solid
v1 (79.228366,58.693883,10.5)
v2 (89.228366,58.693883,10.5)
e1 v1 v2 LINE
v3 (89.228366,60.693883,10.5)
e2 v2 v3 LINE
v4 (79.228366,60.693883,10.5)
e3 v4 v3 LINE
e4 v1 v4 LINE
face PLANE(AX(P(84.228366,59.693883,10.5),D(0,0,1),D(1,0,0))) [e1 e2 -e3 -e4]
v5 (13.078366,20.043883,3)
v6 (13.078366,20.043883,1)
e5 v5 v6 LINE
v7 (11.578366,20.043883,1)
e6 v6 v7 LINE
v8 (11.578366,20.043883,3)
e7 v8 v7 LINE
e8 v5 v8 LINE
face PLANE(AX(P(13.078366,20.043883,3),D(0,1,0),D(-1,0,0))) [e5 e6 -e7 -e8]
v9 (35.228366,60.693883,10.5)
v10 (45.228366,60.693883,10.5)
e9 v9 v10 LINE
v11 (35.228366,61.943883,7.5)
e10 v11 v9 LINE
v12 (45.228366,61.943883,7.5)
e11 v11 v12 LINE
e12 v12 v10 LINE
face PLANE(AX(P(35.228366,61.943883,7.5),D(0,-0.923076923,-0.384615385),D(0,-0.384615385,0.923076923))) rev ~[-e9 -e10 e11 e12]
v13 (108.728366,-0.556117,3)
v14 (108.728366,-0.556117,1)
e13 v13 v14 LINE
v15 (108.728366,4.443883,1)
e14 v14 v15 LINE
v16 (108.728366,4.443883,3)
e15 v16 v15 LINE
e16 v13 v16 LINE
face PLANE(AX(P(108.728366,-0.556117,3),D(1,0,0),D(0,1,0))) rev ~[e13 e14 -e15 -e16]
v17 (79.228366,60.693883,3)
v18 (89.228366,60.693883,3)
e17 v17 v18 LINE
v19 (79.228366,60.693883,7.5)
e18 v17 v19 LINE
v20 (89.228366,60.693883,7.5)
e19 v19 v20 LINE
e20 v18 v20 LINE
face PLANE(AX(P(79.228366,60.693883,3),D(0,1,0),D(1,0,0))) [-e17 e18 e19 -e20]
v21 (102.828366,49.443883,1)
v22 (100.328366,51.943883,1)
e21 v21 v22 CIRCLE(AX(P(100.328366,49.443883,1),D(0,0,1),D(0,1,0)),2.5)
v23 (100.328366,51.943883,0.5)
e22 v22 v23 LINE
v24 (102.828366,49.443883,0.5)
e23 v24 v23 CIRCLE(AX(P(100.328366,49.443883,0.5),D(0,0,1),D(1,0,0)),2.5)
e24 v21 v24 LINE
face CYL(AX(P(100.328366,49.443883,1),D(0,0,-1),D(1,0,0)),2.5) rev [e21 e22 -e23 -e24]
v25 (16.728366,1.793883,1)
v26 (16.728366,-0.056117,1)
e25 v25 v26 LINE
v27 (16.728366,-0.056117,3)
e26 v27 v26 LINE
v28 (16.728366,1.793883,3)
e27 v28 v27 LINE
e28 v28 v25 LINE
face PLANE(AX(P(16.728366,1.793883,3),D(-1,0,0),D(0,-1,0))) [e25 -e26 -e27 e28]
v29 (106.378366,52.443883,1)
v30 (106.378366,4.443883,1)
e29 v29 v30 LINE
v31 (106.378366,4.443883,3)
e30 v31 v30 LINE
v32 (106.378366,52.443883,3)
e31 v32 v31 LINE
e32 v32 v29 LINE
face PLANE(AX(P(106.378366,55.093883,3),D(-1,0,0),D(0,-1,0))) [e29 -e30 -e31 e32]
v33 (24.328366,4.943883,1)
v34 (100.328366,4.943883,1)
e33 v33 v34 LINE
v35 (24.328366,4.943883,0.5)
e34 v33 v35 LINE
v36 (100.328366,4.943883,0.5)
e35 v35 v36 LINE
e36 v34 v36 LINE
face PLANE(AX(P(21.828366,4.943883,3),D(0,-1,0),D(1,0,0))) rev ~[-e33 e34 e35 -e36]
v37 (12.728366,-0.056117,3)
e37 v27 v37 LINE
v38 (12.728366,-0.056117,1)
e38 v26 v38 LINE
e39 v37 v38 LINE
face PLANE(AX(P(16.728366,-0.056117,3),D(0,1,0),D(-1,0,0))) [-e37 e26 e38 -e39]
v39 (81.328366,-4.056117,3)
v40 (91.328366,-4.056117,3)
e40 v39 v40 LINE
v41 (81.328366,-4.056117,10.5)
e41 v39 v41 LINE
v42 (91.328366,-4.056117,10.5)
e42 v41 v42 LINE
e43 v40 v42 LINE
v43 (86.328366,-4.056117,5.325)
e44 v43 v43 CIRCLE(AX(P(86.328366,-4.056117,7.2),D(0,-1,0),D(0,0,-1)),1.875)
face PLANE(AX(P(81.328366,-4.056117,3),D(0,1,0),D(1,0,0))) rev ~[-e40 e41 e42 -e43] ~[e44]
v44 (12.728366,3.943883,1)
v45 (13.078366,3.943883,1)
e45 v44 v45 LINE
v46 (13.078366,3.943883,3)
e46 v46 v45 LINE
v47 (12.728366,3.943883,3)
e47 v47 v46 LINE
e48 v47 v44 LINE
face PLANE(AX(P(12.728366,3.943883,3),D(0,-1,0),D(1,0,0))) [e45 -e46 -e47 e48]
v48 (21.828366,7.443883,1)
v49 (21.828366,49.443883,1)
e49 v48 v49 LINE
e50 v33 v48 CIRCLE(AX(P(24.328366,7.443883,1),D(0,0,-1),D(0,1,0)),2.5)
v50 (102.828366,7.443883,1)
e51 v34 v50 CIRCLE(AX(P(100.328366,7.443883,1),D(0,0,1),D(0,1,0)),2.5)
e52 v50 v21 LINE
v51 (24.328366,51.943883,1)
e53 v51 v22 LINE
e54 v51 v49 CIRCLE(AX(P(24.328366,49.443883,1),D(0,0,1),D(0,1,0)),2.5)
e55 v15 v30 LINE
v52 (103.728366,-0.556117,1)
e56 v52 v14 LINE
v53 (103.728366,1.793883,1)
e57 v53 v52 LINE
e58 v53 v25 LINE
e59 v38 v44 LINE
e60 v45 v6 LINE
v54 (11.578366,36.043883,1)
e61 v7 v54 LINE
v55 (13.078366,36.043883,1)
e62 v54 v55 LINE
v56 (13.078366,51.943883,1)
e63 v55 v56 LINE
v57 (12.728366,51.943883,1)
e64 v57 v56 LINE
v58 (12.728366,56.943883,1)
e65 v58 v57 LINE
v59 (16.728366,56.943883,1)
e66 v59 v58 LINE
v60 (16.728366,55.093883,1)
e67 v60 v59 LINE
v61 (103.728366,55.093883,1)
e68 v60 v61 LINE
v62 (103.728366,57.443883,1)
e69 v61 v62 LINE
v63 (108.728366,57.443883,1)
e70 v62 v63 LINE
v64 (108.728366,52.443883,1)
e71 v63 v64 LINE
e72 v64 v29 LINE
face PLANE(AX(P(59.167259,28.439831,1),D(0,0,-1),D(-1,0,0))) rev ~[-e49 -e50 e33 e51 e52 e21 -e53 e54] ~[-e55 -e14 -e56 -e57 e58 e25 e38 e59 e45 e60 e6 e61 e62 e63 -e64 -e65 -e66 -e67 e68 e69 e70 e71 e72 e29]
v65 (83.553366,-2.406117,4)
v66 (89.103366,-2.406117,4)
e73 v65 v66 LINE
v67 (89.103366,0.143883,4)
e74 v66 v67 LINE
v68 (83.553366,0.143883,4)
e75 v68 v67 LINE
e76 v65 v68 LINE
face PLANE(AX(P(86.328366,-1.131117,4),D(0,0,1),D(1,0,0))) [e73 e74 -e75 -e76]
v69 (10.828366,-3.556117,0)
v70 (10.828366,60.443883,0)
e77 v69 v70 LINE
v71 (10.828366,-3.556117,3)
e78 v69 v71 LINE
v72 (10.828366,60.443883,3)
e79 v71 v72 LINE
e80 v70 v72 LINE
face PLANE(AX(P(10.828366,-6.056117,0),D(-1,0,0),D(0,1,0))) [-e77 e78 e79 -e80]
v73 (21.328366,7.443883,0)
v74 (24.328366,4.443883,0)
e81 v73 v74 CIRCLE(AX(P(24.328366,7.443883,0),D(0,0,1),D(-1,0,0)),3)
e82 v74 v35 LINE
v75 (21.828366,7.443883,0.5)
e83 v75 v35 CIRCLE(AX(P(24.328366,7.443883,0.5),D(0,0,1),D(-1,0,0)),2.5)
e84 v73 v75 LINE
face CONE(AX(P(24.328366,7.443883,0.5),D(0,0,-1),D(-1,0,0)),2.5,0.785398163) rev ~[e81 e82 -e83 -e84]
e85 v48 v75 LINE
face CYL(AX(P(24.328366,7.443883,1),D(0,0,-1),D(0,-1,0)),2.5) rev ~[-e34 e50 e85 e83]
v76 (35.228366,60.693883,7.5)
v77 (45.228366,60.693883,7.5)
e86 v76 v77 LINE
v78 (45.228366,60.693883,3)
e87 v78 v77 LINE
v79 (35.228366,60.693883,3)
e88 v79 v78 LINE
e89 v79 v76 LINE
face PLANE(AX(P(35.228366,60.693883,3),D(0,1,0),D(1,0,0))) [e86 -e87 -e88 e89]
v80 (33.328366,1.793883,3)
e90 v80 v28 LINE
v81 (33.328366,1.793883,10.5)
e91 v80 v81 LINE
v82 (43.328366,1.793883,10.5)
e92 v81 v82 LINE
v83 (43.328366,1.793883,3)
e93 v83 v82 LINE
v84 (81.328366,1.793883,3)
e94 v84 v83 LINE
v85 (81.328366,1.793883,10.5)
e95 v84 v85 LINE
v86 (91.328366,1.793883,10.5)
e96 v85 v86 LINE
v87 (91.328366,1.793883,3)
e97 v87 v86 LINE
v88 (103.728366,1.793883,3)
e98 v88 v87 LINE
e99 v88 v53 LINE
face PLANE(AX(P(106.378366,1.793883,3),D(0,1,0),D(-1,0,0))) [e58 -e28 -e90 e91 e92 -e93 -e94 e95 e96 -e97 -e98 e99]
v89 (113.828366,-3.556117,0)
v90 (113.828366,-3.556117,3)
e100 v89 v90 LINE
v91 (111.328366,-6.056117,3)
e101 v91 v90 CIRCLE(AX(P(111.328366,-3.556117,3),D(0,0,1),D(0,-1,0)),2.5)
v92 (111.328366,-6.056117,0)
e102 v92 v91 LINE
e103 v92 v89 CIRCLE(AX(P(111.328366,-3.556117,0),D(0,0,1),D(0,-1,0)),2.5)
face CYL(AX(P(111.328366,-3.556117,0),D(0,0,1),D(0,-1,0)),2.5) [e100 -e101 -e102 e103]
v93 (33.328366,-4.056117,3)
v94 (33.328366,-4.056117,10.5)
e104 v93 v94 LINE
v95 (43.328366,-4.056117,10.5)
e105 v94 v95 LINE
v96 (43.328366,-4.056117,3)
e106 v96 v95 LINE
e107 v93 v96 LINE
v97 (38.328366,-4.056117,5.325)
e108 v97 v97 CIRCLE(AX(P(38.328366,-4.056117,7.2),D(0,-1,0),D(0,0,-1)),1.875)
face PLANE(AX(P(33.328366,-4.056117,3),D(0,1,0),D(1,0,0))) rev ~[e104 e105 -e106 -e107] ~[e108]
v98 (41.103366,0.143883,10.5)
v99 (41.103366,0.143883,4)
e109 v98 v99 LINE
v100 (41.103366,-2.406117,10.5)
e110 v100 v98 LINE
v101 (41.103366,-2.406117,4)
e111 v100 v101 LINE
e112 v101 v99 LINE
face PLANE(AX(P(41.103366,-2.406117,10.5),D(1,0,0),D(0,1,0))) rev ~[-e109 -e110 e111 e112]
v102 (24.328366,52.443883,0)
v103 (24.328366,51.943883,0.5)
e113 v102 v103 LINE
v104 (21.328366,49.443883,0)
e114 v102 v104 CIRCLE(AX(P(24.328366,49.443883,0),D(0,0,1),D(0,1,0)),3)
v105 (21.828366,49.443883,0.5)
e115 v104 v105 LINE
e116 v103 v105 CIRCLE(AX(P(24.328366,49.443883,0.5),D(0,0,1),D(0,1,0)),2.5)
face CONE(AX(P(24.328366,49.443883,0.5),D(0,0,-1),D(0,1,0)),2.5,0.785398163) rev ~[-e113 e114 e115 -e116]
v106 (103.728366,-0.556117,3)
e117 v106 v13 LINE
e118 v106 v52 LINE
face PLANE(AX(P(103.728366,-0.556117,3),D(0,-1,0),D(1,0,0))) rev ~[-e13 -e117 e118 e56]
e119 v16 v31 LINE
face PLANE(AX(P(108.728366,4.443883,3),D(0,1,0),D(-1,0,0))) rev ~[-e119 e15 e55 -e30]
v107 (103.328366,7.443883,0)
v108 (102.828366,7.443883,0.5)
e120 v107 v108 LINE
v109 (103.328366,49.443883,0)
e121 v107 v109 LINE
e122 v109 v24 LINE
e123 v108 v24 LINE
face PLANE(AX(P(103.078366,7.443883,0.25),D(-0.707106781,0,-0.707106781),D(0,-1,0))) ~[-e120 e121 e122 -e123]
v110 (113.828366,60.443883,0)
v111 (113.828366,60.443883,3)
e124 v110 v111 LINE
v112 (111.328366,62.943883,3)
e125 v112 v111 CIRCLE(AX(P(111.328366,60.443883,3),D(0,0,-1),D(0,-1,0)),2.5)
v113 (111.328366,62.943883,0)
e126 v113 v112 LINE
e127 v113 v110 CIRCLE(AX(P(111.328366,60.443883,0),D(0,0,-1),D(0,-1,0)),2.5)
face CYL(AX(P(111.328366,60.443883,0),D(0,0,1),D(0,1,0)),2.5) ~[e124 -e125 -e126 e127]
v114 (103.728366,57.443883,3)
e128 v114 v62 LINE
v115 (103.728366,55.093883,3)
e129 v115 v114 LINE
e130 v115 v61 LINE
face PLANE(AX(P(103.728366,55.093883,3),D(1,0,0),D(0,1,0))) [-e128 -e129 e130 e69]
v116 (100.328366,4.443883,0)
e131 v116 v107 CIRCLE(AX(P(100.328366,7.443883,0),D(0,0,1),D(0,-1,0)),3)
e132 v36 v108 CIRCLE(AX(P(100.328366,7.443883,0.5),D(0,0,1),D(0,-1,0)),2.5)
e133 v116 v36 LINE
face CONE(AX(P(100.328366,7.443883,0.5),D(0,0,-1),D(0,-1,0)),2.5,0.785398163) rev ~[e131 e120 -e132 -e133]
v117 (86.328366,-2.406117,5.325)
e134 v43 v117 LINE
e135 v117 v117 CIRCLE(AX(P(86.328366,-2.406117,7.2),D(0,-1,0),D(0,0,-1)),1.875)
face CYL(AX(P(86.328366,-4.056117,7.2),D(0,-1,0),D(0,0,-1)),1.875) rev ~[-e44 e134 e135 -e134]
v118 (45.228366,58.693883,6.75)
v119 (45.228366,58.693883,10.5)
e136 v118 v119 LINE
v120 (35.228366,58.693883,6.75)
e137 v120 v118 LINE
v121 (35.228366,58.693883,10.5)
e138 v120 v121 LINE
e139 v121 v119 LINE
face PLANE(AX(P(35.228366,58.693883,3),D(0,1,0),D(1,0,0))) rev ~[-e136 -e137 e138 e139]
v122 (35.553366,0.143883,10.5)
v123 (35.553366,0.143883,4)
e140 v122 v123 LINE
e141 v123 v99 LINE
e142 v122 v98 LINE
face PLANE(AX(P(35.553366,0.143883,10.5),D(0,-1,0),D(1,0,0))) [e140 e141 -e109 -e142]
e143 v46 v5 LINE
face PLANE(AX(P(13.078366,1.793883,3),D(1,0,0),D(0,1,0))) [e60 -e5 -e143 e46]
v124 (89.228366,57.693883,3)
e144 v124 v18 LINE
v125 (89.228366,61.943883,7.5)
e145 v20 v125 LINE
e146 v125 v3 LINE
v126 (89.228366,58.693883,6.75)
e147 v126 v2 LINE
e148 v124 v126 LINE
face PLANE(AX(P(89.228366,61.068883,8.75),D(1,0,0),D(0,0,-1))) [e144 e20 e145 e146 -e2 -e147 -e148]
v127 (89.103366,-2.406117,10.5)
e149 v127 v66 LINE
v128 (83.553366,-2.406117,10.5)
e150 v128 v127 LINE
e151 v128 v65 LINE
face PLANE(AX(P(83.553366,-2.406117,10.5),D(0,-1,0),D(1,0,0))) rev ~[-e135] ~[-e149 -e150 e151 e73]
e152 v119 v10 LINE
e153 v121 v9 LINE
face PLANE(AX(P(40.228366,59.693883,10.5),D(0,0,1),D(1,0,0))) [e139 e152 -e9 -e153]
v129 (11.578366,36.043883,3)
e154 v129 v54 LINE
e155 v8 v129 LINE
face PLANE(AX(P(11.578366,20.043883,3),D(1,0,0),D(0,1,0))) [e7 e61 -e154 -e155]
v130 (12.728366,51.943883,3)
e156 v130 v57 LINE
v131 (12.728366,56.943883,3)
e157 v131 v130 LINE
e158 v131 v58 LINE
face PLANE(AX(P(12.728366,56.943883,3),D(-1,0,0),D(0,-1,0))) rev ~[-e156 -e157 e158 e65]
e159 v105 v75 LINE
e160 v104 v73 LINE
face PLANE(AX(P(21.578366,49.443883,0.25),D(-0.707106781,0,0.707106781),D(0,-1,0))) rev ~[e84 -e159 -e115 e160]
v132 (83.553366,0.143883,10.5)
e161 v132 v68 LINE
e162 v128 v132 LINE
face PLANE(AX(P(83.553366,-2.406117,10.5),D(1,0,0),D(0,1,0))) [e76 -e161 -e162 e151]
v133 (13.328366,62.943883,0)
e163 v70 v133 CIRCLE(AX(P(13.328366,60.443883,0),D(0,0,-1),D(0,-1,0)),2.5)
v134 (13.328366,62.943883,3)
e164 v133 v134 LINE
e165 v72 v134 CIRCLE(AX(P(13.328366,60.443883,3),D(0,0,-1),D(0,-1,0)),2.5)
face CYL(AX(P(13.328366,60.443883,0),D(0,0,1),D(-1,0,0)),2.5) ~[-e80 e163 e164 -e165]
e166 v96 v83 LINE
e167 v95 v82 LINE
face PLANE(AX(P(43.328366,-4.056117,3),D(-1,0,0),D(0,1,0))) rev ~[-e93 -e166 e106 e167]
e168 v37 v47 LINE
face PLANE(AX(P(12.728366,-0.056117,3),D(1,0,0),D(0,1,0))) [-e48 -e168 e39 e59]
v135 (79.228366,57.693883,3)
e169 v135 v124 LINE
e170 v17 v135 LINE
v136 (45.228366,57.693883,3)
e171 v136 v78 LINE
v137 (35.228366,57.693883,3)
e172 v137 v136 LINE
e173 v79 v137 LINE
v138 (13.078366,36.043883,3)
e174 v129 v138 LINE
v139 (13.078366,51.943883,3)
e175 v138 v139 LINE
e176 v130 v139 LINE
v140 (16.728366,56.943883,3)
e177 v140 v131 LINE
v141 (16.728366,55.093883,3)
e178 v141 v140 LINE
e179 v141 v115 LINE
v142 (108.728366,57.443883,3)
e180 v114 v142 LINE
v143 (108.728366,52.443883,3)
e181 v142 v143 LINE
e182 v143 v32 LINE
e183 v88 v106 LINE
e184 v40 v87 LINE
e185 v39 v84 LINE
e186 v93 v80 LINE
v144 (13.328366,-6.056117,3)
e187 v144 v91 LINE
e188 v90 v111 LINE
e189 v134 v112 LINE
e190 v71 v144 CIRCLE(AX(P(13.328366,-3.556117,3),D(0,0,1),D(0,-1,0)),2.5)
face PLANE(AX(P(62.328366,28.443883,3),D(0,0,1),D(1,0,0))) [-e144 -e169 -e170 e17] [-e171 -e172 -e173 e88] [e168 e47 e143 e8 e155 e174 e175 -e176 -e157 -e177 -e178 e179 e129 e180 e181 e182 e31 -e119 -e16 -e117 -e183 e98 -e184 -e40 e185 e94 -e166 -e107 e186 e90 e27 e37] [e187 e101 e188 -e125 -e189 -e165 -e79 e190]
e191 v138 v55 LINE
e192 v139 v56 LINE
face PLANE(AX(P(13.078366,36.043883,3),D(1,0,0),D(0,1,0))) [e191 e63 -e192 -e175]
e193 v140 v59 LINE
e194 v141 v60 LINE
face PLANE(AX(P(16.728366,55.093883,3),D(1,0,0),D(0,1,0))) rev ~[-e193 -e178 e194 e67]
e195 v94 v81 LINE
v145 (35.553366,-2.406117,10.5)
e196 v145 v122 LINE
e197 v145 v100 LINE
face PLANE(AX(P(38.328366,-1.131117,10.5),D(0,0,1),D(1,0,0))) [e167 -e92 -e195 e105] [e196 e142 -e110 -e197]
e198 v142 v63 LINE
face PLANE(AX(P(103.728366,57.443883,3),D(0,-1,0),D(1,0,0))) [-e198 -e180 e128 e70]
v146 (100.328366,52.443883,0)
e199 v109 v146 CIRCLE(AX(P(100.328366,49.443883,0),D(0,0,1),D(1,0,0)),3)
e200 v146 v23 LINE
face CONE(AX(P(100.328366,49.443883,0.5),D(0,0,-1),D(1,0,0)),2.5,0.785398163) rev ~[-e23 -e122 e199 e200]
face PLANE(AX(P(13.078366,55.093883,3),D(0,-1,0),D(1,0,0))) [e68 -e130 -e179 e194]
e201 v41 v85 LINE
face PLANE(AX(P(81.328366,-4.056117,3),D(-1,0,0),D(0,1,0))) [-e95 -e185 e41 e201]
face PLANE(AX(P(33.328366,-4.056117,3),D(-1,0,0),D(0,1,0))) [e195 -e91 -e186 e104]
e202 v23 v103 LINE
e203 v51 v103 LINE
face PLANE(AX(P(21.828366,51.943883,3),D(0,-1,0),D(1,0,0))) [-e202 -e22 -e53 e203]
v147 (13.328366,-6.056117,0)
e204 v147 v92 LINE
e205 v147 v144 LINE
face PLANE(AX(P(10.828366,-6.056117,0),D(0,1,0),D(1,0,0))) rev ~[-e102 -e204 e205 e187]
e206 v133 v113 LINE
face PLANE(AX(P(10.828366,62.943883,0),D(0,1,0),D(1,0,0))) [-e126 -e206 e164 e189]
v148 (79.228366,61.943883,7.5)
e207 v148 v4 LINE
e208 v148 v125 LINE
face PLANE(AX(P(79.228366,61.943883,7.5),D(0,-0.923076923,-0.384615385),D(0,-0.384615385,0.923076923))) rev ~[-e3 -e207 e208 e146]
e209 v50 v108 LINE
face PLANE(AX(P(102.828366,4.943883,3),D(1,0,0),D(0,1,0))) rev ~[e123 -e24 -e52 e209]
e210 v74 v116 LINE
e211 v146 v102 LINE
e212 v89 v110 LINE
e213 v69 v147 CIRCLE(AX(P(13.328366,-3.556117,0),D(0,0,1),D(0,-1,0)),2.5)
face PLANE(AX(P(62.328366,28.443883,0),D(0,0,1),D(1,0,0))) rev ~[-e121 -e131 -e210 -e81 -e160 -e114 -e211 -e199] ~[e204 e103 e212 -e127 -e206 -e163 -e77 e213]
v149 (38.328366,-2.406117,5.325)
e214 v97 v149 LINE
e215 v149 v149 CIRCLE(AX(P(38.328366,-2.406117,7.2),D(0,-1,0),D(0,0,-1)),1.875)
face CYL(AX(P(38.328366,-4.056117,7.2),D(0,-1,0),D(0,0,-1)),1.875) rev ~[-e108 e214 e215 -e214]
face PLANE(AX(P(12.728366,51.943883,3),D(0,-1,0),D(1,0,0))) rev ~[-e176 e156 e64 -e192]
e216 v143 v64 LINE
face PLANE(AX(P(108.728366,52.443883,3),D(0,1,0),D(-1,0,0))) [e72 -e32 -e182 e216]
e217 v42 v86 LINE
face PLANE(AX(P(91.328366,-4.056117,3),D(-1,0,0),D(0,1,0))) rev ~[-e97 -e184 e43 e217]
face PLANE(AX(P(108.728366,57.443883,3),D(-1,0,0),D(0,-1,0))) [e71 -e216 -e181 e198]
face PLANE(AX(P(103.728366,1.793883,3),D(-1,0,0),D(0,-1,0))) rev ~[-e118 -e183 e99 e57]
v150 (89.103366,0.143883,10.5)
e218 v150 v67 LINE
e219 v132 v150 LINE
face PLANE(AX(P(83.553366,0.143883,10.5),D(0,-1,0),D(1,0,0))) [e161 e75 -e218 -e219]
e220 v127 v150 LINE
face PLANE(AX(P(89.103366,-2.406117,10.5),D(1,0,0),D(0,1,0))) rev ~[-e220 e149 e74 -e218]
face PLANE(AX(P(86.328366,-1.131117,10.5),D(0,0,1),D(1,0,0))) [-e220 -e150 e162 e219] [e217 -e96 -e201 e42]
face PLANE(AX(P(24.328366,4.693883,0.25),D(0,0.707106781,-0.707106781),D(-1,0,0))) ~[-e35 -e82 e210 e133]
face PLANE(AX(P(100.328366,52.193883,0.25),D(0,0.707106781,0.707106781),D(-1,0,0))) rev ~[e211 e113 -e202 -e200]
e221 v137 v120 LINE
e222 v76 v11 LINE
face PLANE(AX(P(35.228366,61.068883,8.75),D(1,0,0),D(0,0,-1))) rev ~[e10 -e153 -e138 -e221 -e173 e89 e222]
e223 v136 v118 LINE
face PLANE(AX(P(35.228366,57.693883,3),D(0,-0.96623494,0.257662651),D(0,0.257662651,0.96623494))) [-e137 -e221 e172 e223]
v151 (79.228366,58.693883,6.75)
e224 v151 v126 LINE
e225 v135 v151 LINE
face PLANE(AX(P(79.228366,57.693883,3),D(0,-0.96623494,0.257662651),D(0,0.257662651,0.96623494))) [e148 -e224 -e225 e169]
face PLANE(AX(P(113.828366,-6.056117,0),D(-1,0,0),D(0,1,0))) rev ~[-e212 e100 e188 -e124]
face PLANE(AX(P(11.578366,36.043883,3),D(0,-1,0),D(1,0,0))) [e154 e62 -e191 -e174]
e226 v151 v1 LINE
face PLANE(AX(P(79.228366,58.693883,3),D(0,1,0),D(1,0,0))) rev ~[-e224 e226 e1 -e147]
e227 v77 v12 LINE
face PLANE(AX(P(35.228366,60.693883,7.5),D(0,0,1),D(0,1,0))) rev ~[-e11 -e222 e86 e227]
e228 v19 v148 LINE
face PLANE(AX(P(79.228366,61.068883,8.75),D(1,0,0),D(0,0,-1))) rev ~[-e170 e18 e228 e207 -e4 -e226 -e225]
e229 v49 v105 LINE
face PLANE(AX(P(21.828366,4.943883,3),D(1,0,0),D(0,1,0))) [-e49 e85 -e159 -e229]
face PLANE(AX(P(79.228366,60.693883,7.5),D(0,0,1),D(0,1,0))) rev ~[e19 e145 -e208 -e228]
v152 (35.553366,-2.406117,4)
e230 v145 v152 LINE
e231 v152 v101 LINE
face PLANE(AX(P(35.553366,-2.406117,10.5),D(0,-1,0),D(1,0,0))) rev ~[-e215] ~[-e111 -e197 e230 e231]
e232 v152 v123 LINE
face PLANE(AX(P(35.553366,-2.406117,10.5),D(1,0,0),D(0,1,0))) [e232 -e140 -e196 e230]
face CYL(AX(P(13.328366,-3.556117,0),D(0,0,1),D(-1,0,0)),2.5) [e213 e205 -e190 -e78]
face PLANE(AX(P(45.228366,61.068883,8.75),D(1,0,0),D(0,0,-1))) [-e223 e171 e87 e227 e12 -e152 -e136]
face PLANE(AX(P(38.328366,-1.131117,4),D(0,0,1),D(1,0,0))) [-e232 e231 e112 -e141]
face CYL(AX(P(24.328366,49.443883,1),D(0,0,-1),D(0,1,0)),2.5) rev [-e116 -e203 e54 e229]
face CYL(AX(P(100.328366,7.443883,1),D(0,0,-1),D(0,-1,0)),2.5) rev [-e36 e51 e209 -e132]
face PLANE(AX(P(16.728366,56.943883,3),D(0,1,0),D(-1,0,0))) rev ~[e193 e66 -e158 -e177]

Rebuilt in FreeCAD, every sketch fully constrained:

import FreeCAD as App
import Part
import Sketcher
from FreeCAD import Vector
Q = App.Units.Quantity


def edges_at(feature, points):
    """Names of the edges that pass closest to the given points."""
    edges = feature.Shape.Edges
    near = lambda p: min(range(len(edges)), key=lambda i: edges[i].distToShape(Part.Vertex(*p))[0])
    return sorted({f"Edge{near(p) + 1}" for p in points})

doc = App.newDocument("Part")
body = doc.addObject("PartDesign::Body", "Body")

sketch1 = body.newObject("Sketcher::SketchObject", "Sketch")
sketch1.AttachmentSupport = (doc.getObject("XY_Plane"), [""])
sketch1.MapMode = "FlatFace"
sketch1.addGeometry([
    Part.LineSegment(Vector(10.828366, 62.943883, 0), Vector(10.828366, -6.056117, 0)),
    Part.LineSegment(Vector(10.828366, -6.056117, 0), Vector(113.828366, -6.056117, 0)),
    Part.LineSegment(Vector(113.828366, -6.056117, 0), Vector(113.828366, 62.943883, 0)),
    Part.LineSegment(Vector(113.828366, 62.943883, 0), Vector(10.828366, 62.943883, 0)),
], False)
sketch1.addConstraint([
    Sketcher.Constraint("Coincident", 0, 2, 1, 1),
    Sketcher.Constraint("Coincident", 1, 2, 2, 1),
    Sketcher.Constraint("Coincident", 2, 2, 3, 1),
    Sketcher.Constraint("Coincident", 3, 2, 0, 1),
    Sketcher.Constraint("Vertical", 0),
    Sketcher.Constraint("Horizontal", 1),
    Sketcher.Constraint("Vertical", 2),
    Sketcher.Constraint("Horizontal", 3),
    Sketcher.Constraint("DistanceX", 1, 1, 1, 2, Q("103 mm")),
    Sketcher.Constraint("DistanceY", 0, 2, 0, 1, Q("69 mm")),
    Sketcher.Constraint("DistanceX", -1, 1, 0, 2, Q("10.828366 mm")),
    Sketcher.Constraint("DistanceY", 0, 2, -1, 1, Q("6.056117 mm")),
])
pad1 = body.newObject("PartDesign::Pad", "Pad")
pad1.Profile = sketch1
pad1.Length = 3

sketch2 = body.newObject("Sketcher::SketchObject", "Sketch001")
sketch2.AttachmentSupport = (doc.getObject("XY_Plane"), [""])
sketch2.MapMode = "FlatFace"
sketch2.AttachmentOffset = App.Placement(Vector(0, 0, 3), App.Rotation())
sketch2.addGeometry([
    Part.LineSegment(Vector(21.828366, 51.943883, 0), Vector(21.828366, 4.943883, 0)),
    Part.LineSegment(Vector(21.828366, 4.943883, 0), Vector(102.828366, 4.943883, 0)),
    Part.LineSegment(Vector(102.828366, 4.943883, 0), Vector(102.828366, 51.943883, 0)),
    Part.LineSegment(Vector(102.828366, 51.943883, 0), Vector(21.828366, 51.943883, 0)),
], False)
sketch2.addConstraint([
    Sketcher.Constraint("Coincident", 0, 2, 1, 1),
    Sketcher.Constraint("Coincident", 1, 2, 2, 1),
    Sketcher.Constraint("Coincident", 2, 2, 3, 1),
    Sketcher.Constraint("Coincident", 3, 2, 0, 1),
    Sketcher.Constraint("Vertical", 0),
    Sketcher.Constraint("Horizontal", 1),
    Sketcher.Constraint("Vertical", 2),
    Sketcher.Constraint("Horizontal", 3),
    Sketcher.Constraint("DistanceX", 1, 1, 1, 2, Q("81 mm")),
    Sketcher.Constraint("DistanceY", 0, 2, 0, 1, Q("47 mm")),
    Sketcher.Constraint("DistanceX", -1, 1, 0, 2, Q("21.828366 mm")),
    Sketcher.Constraint("DistanceY", -1, 1, 0, 2, Q("4.943883 mm")),
])
pocket1 = body.newObject("PartDesign::Pocket", "Pocket")
pocket1.Profile = sketch2
pocket1.Length = 3

sketch3 = body.newObject("Sketcher::SketchObject", "Sketch002")
sketch3.AttachmentSupport = (doc.getObject("XY_Plane"), [""])
sketch3.MapMode = "FlatFace"
sketch3.AttachmentOffset = App.Placement(Vector(0, 0, 3), App.Rotation())
sketch3.addGeometry([
    Part.LineSegment(Vector(106.378366, 55.093883, 0), Vector(13.078366, 55.093883, 0)),
    Part.LineSegment(Vector(13.078366, 55.093883, 0), Vector(13.078366, 36.043883, 0)),
    Part.LineSegment(Vector(13.078366, 36.043883, 0), Vector(11.578366, 36.043883, 0)),
    Part.LineSegment(Vector(11.578366, 36.043883, 0), Vector(11.578366, 20.043883, 0)),
    Part.LineSegment(Vector(11.578366, 20.043883, 0), Vector(13.078366, 20.043883, 0)),
    Part.LineSegment(Vector(13.078366, 20.043883, 0), Vector(13.078366, 1.793883, 0)),
    Part.LineSegment(Vector(13.078366, 1.793883, 0), Vector(106.378366, 1.793883, 0)),
    Part.LineSegment(Vector(106.378366, 1.793883, 0), Vector(106.378366, 55.093883, 0)),
], False)
sketch3.addConstraint([
    Sketcher.Constraint("Coincident", 0, 2, 1, 1),
    Sketcher.Constraint("Coincident", 1, 2, 2, 1),
    Sketcher.Constraint("Coincident", 2, 2, 3, 1),
    Sketcher.Constraint("Coincident", 3, 2, 4, 1),
    Sketcher.Constraint("Coincident", 4, 2, 5, 1),
    Sketcher.Constraint("Coincident", 5, 2, 6, 1),
    Sketcher.Constraint("Coincident", 6, 2, 7, 1),
    Sketcher.Constraint("Coincident", 7, 2, 0, 1),
    Sketcher.Constraint("Horizontal", 0),
    Sketcher.Constraint("Vertical", 1),
    Sketcher.Constraint("Horizontal", 2),
    Sketcher.Constraint("Vertical", 3),
    Sketcher.Constraint("Horizontal", 4),
    Sketcher.Constraint("Vertical", 5),
    Sketcher.Constraint("Horizontal", 6),
    Sketcher.Constraint("Vertical", 7),
    Sketcher.Constraint("Vertical", 1, 2, 4, 2),
    Sketcher.Constraint("DistanceY", 3, 2, 3, 1, Q("16 mm")),
    Sketcher.Constraint("DistanceX", 0, 2, 0, 1, Q("93.3 mm")),
    Sketcher.Constraint("DistanceX", 2, 2, 2, 1, Q("1.5 mm")),
    Sketcher.Constraint("DistanceY", 7, 1, 7, 2, Q("53.3 mm")),
    Sketcher.Constraint("DistanceY", 1, 2, 1, 1, Q("19.05 mm")),
    Sketcher.Constraint("DistanceX", -1, 1, 0, 2, Q("13.078366 mm")),
    Sketcher.Constraint("DistanceY", -1, 1, 0, 2, Q("55.093883 mm")),
])
pocket2 = body.newObject("PartDesign::Pocket", "Pocket001")
pocket2.Profile = sketch3
pocket2.Length = 2
doc.recompute()

fillet = body.newObject("PartDesign::Fillet", "Fillet")
fillet.Base = (pocket2, edges_at(pocket2, [
    (113.828, -6.056, 1.5),
    (10.828, -6.056, 1.5),
    (10.828, 62.944, 1.5),
    (113.828, 62.944, 1.5),
]))
fillet.Radius = 2.5
doc.recompute()

fillet2 = body.newObject("PartDesign::Fillet", "Fillet001")
fillet2.Base = (fillet, edges_at(fillet, [
    (21.828, 4.944, 0.5),
    (21.828, 51.944, 0.5),
    (102.828, 51.944, 0.5),
    (102.828, 4.944, 0.5),
]))
fillet2.Radius = 2.5
doc.recompute()

chamfer = body.newObject("PartDesign::Chamfer", "Chamfer")
chamfer.Base = (fillet2, edges_at(fillet2, [
    (22.561, 51.212, 0),
    (22.561, 5.676, 0),
    (102.096, 5.676, 0),
    (102.096, 51.212, 0),
    (21.828, 28.444, 0),
    (62.328, 51.944, 0),
    (62.328, 4.944, 0),
    (102.828, 28.444, 0),
]))
chamfer.Size = 0.5

sketch4 = body.newObject("Sketcher::SketchObject", "Sketch003")
sketch4.AttachmentSupport = (doc.getObject("XY_Plane"), [""])
sketch4.MapMode = "FlatFace"
sketch4.AttachmentOffset = App.Placement(Vector(0, 0, 3), App.Rotation())
sketch4.addGeometry([
    Part.LineSegment(Vector(16.728366, 55.093883, 0), Vector(16.728366, 56.943883, 0)),
    Part.LineSegment(Vector(16.728366, 56.943883, 0), Vector(12.728366, 56.943883, 0)),
    Part.LineSegment(Vector(12.728366, 56.943883, 0), Vector(12.728366, 51.943883, 0)),
    Part.LineSegment(Vector(12.728366, 51.943883, 0), Vector(13.078366, 51.943883, 0)),
    Part.LineSegment(Vector(13.078366, 51.943883, 0), Vector(13.078366, 55.093883, 0)),
    Part.LineSegment(Vector(13.078366, 55.093883, 0), Vector(16.728366, 55.093883, 0)),
    Part.LineSegment(Vector(103.728366, 57.443883, 0), Vector(103.728366, 55.093883, 0)),
    Part.LineSegment(Vector(103.728366, 55.093883, 0), Vector(106.378366, 55.093883, 0)),
    Part.LineSegment(Vector(106.378366, 55.093883, 0), Vector(106.378366, 52.443883, 0)),
    Part.LineSegment(Vector(106.378366, 52.443883, 0), Vector(108.728366, 52.443883, 0)),
    Part.LineSegment(Vector(108.728366, 52.443883, 0), Vector(108.728366, 57.443883, 0)),
    Part.LineSegment(Vector(108.728366, 57.443883, 0), Vector(103.728366, 57.443883, 0)),
    Part.LineSegment(Vector(16.728366, -0.056117, 0), Vector(16.728366, 1.793883, 0)),
    Part.LineSegment(Vector(16.728366, 1.793883, 0), Vector(13.078366, 1.793883, 0)),
    Part.LineSegment(Vector(13.078366, 1.793883, 0), Vector(13.078366, 3.943883, 0)),
    Part.LineSegment(Vector(13.078366, 3.943883, 0), Vector(12.728366, 3.943883, 0)),
    Part.LineSegment(Vector(12.728366, 3.943883, 0), Vector(12.728366, -0.056117, 0)),
    Part.LineSegment(Vector(12.728366, -0.056117, 0), Vector(16.728366, -0.056117, 0)),
    Part.LineSegment(Vector(103.728366, 1.793883, 0), Vector(103.728366, -0.556117, 0)),
    Part.LineSegment(Vector(103.728366, -0.556117, 0), Vector(108.728366, -0.556117, 0)),
    Part.LineSegment(Vector(108.728366, -0.556117, 0), Vector(108.728366, 4.443883, 0)),
    Part.LineSegment(Vector(108.728366, 4.443883, 0), Vector(106.378366, 4.443883, 0)),
    Part.LineSegment(Vector(106.378366, 4.443883, 0), Vector(106.378366, 1.793883, 0)),
    Part.LineSegment(Vector(106.378366, 1.793883, 0), Vector(103.728366, 1.793883, 0)),
], False)
sketch4.addConstraint([
    Sketcher.Constraint("Coincident", 0, 2, 1, 1),
    Sketcher.Constraint("Coincident", 1, 2, 2, 1),
    Sketcher.Constraint("Coincident", 2, 2, 3, 1),
    Sketcher.Constraint("Coincident", 3, 2, 4, 1),
    Sketcher.Constraint("Coincident", 4, 2, 5, 1),
    Sketcher.Constraint("Coincident", 5, 2, 0, 1),
    Sketcher.Constraint("Coincident", 6, 2, 7, 1),
    Sketcher.Constraint("Coincident", 7, 2, 8, 1),
    Sketcher.Constraint("Coincident", 8, 2, 9, 1),
    Sketcher.Constraint("Coincident", 9, 2, 10, 1),
    Sketcher.Constraint("Coincident", 10, 2, 11, 1),
    Sketcher.Constraint("Coincident", 11, 2, 6, 1),
    Sketcher.Constraint("Coincident", 12, 2, 13, 1),
    Sketcher.Constraint("Coincident", 13, 2, 14, 1),
    Sketcher.Constraint("Coincident", 14, 2, 15, 1),
    Sketcher.Constraint("Coincident", 15, 2, 16, 1),
    Sketcher.Constraint("Coincident", 16, 2, 17, 1),
    Sketcher.Constraint("Coincident", 17, 2, 12, 1),
    Sketcher.Constraint("Coincident", 18, 2, 19, 1),
    Sketcher.Constraint("Coincident", 19, 2, 20, 1),
    Sketcher.Constraint("Coincident", 20, 2, 21, 1),
    Sketcher.Constraint("Coincident", 21, 2, 22, 1),
    Sketcher.Constraint("Coincident", 22, 2, 23, 1),
    Sketcher.Constraint("Coincident", 23, 2, 18, 1),
    Sketcher.Constraint("Vertical", 0),
    Sketcher.Constraint("Horizontal", 1),
    Sketcher.Constraint("Vertical", 2),
    Sketcher.Constraint("Horizontal", 3),
    Sketcher.Constraint("Vertical", 4),
    Sketcher.Constraint("Horizontal", 5),
    Sketcher.Constraint("Vertical", 6),
    Sketcher.Constraint("Horizontal", 7),
    Sketcher.Constraint("Vertical", 8),
    Sketcher.Constraint("Horizontal", 9),
    Sketcher.Constraint("Vertical", 10),
    Sketcher.Constraint("Horizontal", 11),
    Sketcher.Constraint("Vertical", 12),
    Sketcher.Constraint("Horizontal", 13),
    Sketcher.Constraint("Vertical", 14),
    Sketcher.Constraint("Horizontal", 15),
    Sketcher.Constraint("Vertical", 16),
    Sketcher.Constraint("Horizontal", 17),
    Sketcher.Constraint("Vertical", 18),
    Sketcher.Constraint("Horizontal", 19),
    Sketcher.Constraint("Vertical", 20),
    Sketcher.Constraint("Horizontal", 21),
    Sketcher.Constraint("Vertical", 22),
    Sketcher.Constraint("Horizontal", 23),
    Sketcher.Constraint("Horizontal", 5, 2, 6, 2),
    Sketcher.Constraint("Horizontal", 13, 2, 22, 2),
    Sketcher.Constraint("Vertical", 5, 2, 12, 2),
    Sketcher.Constraint("Vertical", 4, 2, 13, 2),
    Sketcher.Constraint("Vertical", 2, 2, 15, 2),
    Sketcher.Constraint("Vertical", 11, 2, 18, 2),
    Sketcher.Constraint("Vertical", 10, 2, 19, 2),
    Sketcher.Constraint("Vertical", 8, 2, 21, 2),
    Sketcher.Constraint("Equal", 19, 2),
    Sketcher.Constraint("Equal", 21, 6),
    Sketcher.Constraint("Equal", 23, 8),
    Sketcher.Constraint("Equal", 0, 12),
    Sketcher.Constraint("Equal", 17, 16),
    Sketcher.Constraint("Equal", 6, 18),
    Sketcher.Constraint("Equal", 10, 20),
    Sketcher.Constraint("DistanceX", 1, 2, 1, 1, Q("4 mm")),
    Sketcher.Constraint("DistanceX", 11, 2, 11, 1, Q("5 mm")),
    Sketcher.Constraint("DistanceX", 5, 2, 6, 2, Q("87 mm")),
    Sketcher.Constraint("DistanceY", 14, 2, 3, 2, Q("48 mm")),
    Sketcher.Constraint("DistanceY", 18, 2, 8, 2, Q("53 mm")),
    Sketcher.Constraint("DistanceX", 3, 1, 3, 2, Q("0.35 mm")),
    Sketcher.Constraint("DistanceX", 7, 1, 7, 2, Q("2.65 mm")),
    Sketcher.Constraint("DistanceX", -1, 1, 0, 2, Q("16.728366 mm")),
    Sketcher.Constraint("DistanceY", -1, 1, 0, 2, Q("56.943883 mm")),
])
pocket3 = body.newObject("PartDesign::Pocket", "Pocket002")
pocket3.Profile = sketch4
pocket3.Length = 2

sketch5 = body.newObject("Sketcher::SketchObject", "Sketch004")
sketch5.AttachmentSupport = (doc.getObject("XY_Plane"), [""])
sketch5.MapMode = "FlatFace"
sketch5.AttachmentOffset = App.Placement(Vector(0, 0, 3), App.Rotation())
sketch5.addGeometry([
    Part.LineSegment(Vector(79.228366, 60.693883, 0), Vector(79.228366, 58.693883, 0)),
    Part.LineSegment(Vector(79.228366, 58.693883, 0), Vector(89.228366, 58.693883, 0)),
    Part.LineSegment(Vector(89.228366, 58.693883, 0), Vector(89.228366, 60.693883, 0)),
    Part.LineSegment(Vector(89.228366, 60.693883, 0), Vector(79.228366, 60.693883, 0)),
    Part.LineSegment(Vector(35.228366, 60.693883, 0), Vector(35.228366, 58.693883, 0)),
    Part.LineSegment(Vector(35.228366, 58.693883, 0), Vector(45.228366, 58.693883, 0)),
    Part.LineSegment(Vector(45.228366, 58.693883, 0), Vector(45.228366, 60.693883, 0)),
    Part.LineSegment(Vector(45.228366, 60.693883, 0), Vector(35.228366, 60.693883, 0)),
], False)
sketch5.addConstraint([
    Sketcher.Constraint("Coincident", 0, 2, 1, 1),
    Sketcher.Constraint("Coincident", 1, 2, 2, 1),
    Sketcher.Constraint("Coincident", 2, 2, 3, 1),
    Sketcher.Constraint("Coincident", 3, 2, 0, 1),
    Sketcher.Constraint("Coincident", 4, 2, 5, 1),
    Sketcher.Constraint("Coincident", 5, 2, 6, 1),
    Sketcher.Constraint("Coincident", 6, 2, 7, 1),
    Sketcher.Constraint("Coincident", 7, 2, 4, 1),
    Sketcher.Constraint("Vertical", 0),
    Sketcher.Constraint("Horizontal", 1),
    Sketcher.Constraint("Vertical", 2),
    Sketcher.Constraint("Horizontal", 3),
    Sketcher.Constraint("Vertical", 4),
    Sketcher.Constraint("Horizontal", 5),
    Sketcher.Constraint("Vertical", 6),
    Sketcher.Constraint("Horizontal", 7),
    Sketcher.Constraint("Horizontal", 1, 2, 4, 2),
    Sketcher.Constraint("Horizontal", 3, 2, 6, 2),
    Sketcher.Constraint("Equal", 3, 5),
    Sketcher.Constraint("DistanceX", 1, 1, 1, 2, Q("10 mm")),
    Sketcher.Constraint("DistanceY", 0, 2, 0, 1, Q("2 mm")),
    Sketcher.Constraint("DistanceX", 4, 2, 0, 2, Q("44 mm")),
    Sketcher.Constraint("DistanceX", -1, 1, 0, 2, Q("79.228366 mm")),
    Sketcher.Constraint("DistanceY", -1, 1, 0, 2, Q("58.693883 mm")),
])
pad2 = body.newObject("PartDesign::Pad", "Pad001")
pad2.Profile = sketch5
pad2.Length = 7.5

sketch6 = body.newObject("Sketcher::SketchObject", "Sketch005")
sketch6.AttachmentSupport = (doc.getObject("XY_Plane"), [""])
sketch6.MapMode = "FlatFace"
sketch6.AttachmentOffset = App.Placement(Vector(0, 0, 3), App.Rotation())
sketch6.addGeometry([
    Part.LineSegment(Vector(81.328366, 1.793883, 0), Vector(81.328366, -4.056117, 0)),
    Part.LineSegment(Vector(81.328366, -4.056117, 0), Vector(91.328366, -4.056117, 0)),
    Part.LineSegment(Vector(91.328366, -4.056117, 0), Vector(91.328366, 1.793883, 0)),
    Part.LineSegment(Vector(91.328366, 1.793883, 0), Vector(81.328366, 1.793883, 0)),
    Part.LineSegment(Vector(33.328366, 1.793883, 0), Vector(33.328366, -4.056117, 0)),
    Part.LineSegment(Vector(33.328366, -4.056117, 0), Vector(43.328366, -4.056117, 0)),
    Part.LineSegment(Vector(43.328366, -4.056117, 0), Vector(43.328366, 1.793883, 0)),
    Part.LineSegment(Vector(43.328366, 1.793883, 0), Vector(33.328366, 1.793883, 0)),
], False)
sketch6.addConstraint([
    Sketcher.Constraint("Coincident", 0, 2, 1, 1),
    Sketcher.Constraint("Coincident", 1, 2, 2, 1),
    Sketcher.Constraint("Coincident", 2, 2, 3, 1),
    Sketcher.Constraint("Coincident", 3, 2, 0, 1),
    Sketcher.Constraint("Coincident", 4, 2, 5, 1),
    Sketcher.Constraint("Coincident", 5, 2, 6, 1),
    Sketcher.Constraint("Coincident", 6, 2, 7, 1),
    Sketcher.Constraint("Coincident", 7, 2, 4, 1),
    Sketcher.Constraint("Vertical", 0),
    Sketcher.Constraint("Horizontal", 1),
    Sketcher.Constraint("Vertical", 2),
    Sketcher.Constraint("Horizontal", 3),
    Sketcher.Constraint("Vertical", 4),
    Sketcher.Constraint("Horizontal", 5),
    Sketcher.Constraint("Vertical", 6),
    Sketcher.Constraint("Horizontal", 7),
    Sketcher.Constraint("Horizontal", 1, 2, 4, 2),
    Sketcher.Constraint("Horizontal", 3, 2, 6, 2),
    Sketcher.Constraint("Equal", 3, 5),
    Sketcher.Constraint("DistanceX", 1, 1, 1, 2, Q("10 mm")),
    Sketcher.Constraint("DistanceX", 4, 2, 0, 2, Q("48 mm")),
    Sketcher.Constraint("DistanceY", 0, 2, 0, 1, Q("5.85 mm")),
    Sketcher.Constraint("DistanceX", -1, 1, 0, 2, Q("81.328366 mm")),
    Sketcher.Constraint("DistanceY", 0, 2, -1, 1, Q("4.056117 mm")),
])
pad3 = body.newObject("PartDesign::Pad", "Pad002")
pad3.Profile = sketch6
pad3.Length = 7.5

sketch7 = body.newObject("Sketcher::SketchObject", "Sketch006")
sketch7.AttachmentSupport = (doc.getObject("YZ_Plane"), [""])
sketch7.MapMode = "FlatFace"
sketch7.AttachmentOffset = App.Placement(Vector(0, 0, 35.228366), App.Rotation())
sketch7.addGeometry([
    Part.LineSegment(Vector(61.943883, 7.5, 0), Vector(60.693883, 7.5, 0)),
    Part.LineSegment(Vector(60.693883, 7.5, 0), Vector(60.693883, 10.5, 0)),
    Part.LineSegment(Vector(60.693883, 10.5, 0), Vector(61.943883, 7.5, 0)),
    Part.LineSegment(Vector(57.693883, 3, 0), Vector(58.693883, 6.75, 0)),
    Part.LineSegment(Vector(58.693883, 6.75, 0), Vector(58.693883, 3, 0)),
    Part.LineSegment(Vector(58.693883, 3, 0), Vector(57.693883, 3, 0)),
], False)
sketch7.addConstraint([
    Sketcher.Constraint("Coincident", 0, 2, 1, 1),
    Sketcher.Constraint("Coincident", 1, 2, 2, 1),
    Sketcher.Constraint("Coincident", 2, 2, 0, 1),
    Sketcher.Constraint("Coincident", 3, 2, 4, 1),
    Sketcher.Constraint("Coincident", 4, 2, 5, 1),
    Sketcher.Constraint("Coincident", 5, 2, 3, 1),
    Sketcher.Constraint("Horizontal", 0),
    Sketcher.Constraint("Vertical", 1),
    Sketcher.Constraint("Vertical", 4),
    Sketcher.Constraint("Horizontal", 5),
    Sketcher.Constraint("DistanceX", 5, 2, 5, 1, Q("1 mm")),
    Sketcher.Constraint("DistanceY", 1, 1, 1, 2, Q("3 mm")),
    Sketcher.Constraint("DistanceY", -1, 1, 4, 2, Q("3 mm")),
    Sketcher.Constraint("DistanceX", 3, 2, 0, 2, Q("2 mm")),
    Sketcher.Constraint("DistanceX", 0, 2, 0, 1, Q("1.25 mm")),
    Sketcher.Constraint("DistanceY", 4, 2, 4, 1, Q("3.75 mm")),
    Sketcher.Constraint("DistanceY", -1, 1, 0, 2, Q("7.5 mm")),
    Sketcher.Constraint("DistanceX", -1, 1, 0, 2, Q("60.693883 mm")),
])
pad4 = body.newObject("PartDesign::Pad", "Pad003")
pad4.Profile = sketch7
pad4.Length = 10

sketch8 = body.newObject("Sketcher::SketchObject", "Sketch007")
sketch8.AttachmentSupport = (doc.getObject("YZ_Plane"), [""])
sketch8.MapMode = "FlatFace"
sketch8.AttachmentOffset = App.Placement(Vector(0, 0, 79.228366), App.Rotation())
sketch8.addGeometry([
    Part.LineSegment(Vector(61.943883, 7.5, 0), Vector(60.693883, 7.5, 0)),
    Part.LineSegment(Vector(60.693883, 7.5, 0), Vector(60.693883, 10.5, 0)),
    Part.LineSegment(Vector(60.693883, 10.5, 0), Vector(61.943883, 7.5, 0)),
    Part.LineSegment(Vector(58.693883, 6.75, 0), Vector(58.693883, 3, 0)),
    Part.LineSegment(Vector(58.693883, 3, 0), Vector(57.693883, 3, 0)),
    Part.LineSegment(Vector(57.693883, 3, 0), Vector(58.693883, 6.75, 0)),
], False)
sketch8.addConstraint([
    Sketcher.Constraint("Coincident", 0, 2, 1, 1),
    Sketcher.Constraint("Coincident", 1, 2, 2, 1),
    Sketcher.Constraint("Coincident", 2, 2, 0, 1),
    Sketcher.Constraint("Coincident", 3, 2, 4, 1),
    Sketcher.Constraint("Coincident", 4, 2, 5, 1),
    Sketcher.Constraint("Coincident", 5, 2, 3, 1),
    Sketcher.Constraint("Horizontal", 0),
    Sketcher.Constraint("Vertical", 1),
    Sketcher.Constraint("Vertical", 3),
    Sketcher.Constraint("Horizontal", 4),
    Sketcher.Constraint("DistanceX", 4, 2, 4, 1, Q("1 mm")),
    Sketcher.Constraint("DistanceY", 1, 1, 1, 2, Q("3 mm")),
    Sketcher.Constraint("DistanceY", -1, 1, 3, 2, Q("3 mm")),
    Sketcher.Constraint("DistanceX", 3, 2, 0, 2, Q("2 mm")),
    Sketcher.Constraint("DistanceX", 0, 2, 0, 1, Q("1.25 mm")),
    Sketcher.Constraint("DistanceY", 3, 2, 3, 1, Q("3.75 mm")),
    Sketcher.Constraint("DistanceY", -1, 1, 0, 2, Q("7.5 mm")),
    Sketcher.Constraint("DistanceX", -1, 1, 0, 2, Q("60.693883 mm")),
])
pad5 = body.newObject("PartDesign::Pad", "Pad004")
pad5.Profile = sketch8
pad5.Length = 10

sketch9 = body.newObject("Sketcher::SketchObject", "Sketch008")
sketch9.AttachmentSupport = (doc.getObject("XY_Plane"), [""])
sketch9.MapMode = "FlatFace"
sketch9.AttachmentOffset = App.Placement(Vector(0, 0, 10.5), App.Rotation())
sketch9.addGeometry([
    Part.LineSegment(Vector(83.553366, 0.143883, 0), Vector(83.553366, -2.406117, 0)),
    Part.LineSegment(Vector(83.553366, -2.406117, 0), Vector(89.103366, -2.406117, 0)),
    Part.LineSegment(Vector(89.103366, -2.406117, 0), Vector(89.103366, 0.143883, 0)),
    Part.LineSegment(Vector(89.103366, 0.143883, 0), Vector(83.553366, 0.143883, 0)),
    Part.LineSegment(Vector(35.553366, 0.143883, 0), Vector(35.553366, -2.406117, 0)),
    Part.LineSegment(Vector(35.553366, -2.406117, 0), Vector(41.103366, -2.406117, 0)),
    Part.LineSegment(Vector(41.103366, -2.406117, 0), Vector(41.103366, 0.143883, 0)),
    Part.LineSegment(Vector(41.103366, 0.143883, 0), Vector(35.553366, 0.143883, 0)),
], False)
sketch9.addConstraint([
    Sketcher.Constraint("Coincident", 0, 2, 1, 1),
    Sketcher.Constraint("Coincident", 1, 2, 2, 1),
    Sketcher.Constraint("Coincident", 2, 2, 3, 1),
    Sketcher.Constraint("Coincident", 3, 2, 0, 1),
    Sketcher.Constraint("Coincident", 4, 2, 5, 1),
    Sketcher.Constraint("Coincident", 5, 2, 6, 1),
    Sketcher.Constraint("Coincident", 6, 2, 7, 1),
    Sketcher.Constraint("Coincident", 7, 2, 4, 1),
    Sketcher.Constraint("Vertical", 0),
    Sketcher.Constraint("Horizontal", 1),
    Sketcher.Constraint("Vertical", 2),
    Sketcher.Constraint("Horizontal", 3),
    Sketcher.Constraint("Vertical", 4),
    Sketcher.Constraint("Horizontal", 5),
    Sketcher.Constraint("Vertical", 6),
    Sketcher.Constraint("Horizontal", 7),
    Sketcher.Constraint("Horizontal", 1, 2, 4, 2),
    Sketcher.Constraint("Horizontal", 3, 2, 6, 2),
    Sketcher.Constraint("Equal", 3, 5),
    Sketcher.Constraint("DistanceX", 4, 2, 0, 2, Q("48 mm")),
    Sketcher.Constraint("DistanceX", 1, 1, 1, 2, Q("5.55 mm")),
    Sketcher.Constraint("DistanceY", 0, 2, 0, 1, Q("2.55 mm")),
    Sketcher.Constraint("DistanceX", -1, 1, 0, 2, Q("83.553366 mm")),
    Sketcher.Constraint("DistanceY", 0, 2, -1, 1, Q("2.406117 mm")),
])
pocket4 = body.newObject("PartDesign::Pocket", "Pocket003")
pocket4.Profile = sketch9
pocket4.Length = 6.5

sketch10 = body.newObject("Sketcher::SketchObject", "Sketch009")
sketch10.AttachmentSupport = (doc.getObject("XZ_Plane"), [""])
sketch10.MapMode = "FlatFace"
sketch10.AttachmentOffset = App.Placement(Vector(0, 0, 4.056117), App.Rotation())
sketch10.addGeometry([
    Part.Circle(Vector(38.328366, 7.2, 0), Vector(0, 0, 1), 1.875),
    Part.Circle(Vector(86.328366, 7.2, 0), Vector(0, 0, 1), 1.875),
], False)
sketch10.addConstraint([
    Sketcher.Constraint("Equal", 0, 1),
    Sketcher.Constraint("Horizontal", 0, 3, 1, 3),
    Sketcher.Constraint("Diameter", 0, Q("3.75 mm")),
    Sketcher.Constraint("DistanceX", 0, 3, 1, 3, Q("48 mm")),
    Sketcher.Constraint("DistanceY", -1, 1, 0, 3, Q("7.2 mm")),
    Sketcher.Constraint("DistanceX", -1, 1, 0, 3, Q("38.328366 mm")),
])
pocket5 = body.newObject("PartDesign::Pocket", "Pocket004")
pocket5.Profile = sketch10
pocket5.Length = 1.65

doc.recompute()
